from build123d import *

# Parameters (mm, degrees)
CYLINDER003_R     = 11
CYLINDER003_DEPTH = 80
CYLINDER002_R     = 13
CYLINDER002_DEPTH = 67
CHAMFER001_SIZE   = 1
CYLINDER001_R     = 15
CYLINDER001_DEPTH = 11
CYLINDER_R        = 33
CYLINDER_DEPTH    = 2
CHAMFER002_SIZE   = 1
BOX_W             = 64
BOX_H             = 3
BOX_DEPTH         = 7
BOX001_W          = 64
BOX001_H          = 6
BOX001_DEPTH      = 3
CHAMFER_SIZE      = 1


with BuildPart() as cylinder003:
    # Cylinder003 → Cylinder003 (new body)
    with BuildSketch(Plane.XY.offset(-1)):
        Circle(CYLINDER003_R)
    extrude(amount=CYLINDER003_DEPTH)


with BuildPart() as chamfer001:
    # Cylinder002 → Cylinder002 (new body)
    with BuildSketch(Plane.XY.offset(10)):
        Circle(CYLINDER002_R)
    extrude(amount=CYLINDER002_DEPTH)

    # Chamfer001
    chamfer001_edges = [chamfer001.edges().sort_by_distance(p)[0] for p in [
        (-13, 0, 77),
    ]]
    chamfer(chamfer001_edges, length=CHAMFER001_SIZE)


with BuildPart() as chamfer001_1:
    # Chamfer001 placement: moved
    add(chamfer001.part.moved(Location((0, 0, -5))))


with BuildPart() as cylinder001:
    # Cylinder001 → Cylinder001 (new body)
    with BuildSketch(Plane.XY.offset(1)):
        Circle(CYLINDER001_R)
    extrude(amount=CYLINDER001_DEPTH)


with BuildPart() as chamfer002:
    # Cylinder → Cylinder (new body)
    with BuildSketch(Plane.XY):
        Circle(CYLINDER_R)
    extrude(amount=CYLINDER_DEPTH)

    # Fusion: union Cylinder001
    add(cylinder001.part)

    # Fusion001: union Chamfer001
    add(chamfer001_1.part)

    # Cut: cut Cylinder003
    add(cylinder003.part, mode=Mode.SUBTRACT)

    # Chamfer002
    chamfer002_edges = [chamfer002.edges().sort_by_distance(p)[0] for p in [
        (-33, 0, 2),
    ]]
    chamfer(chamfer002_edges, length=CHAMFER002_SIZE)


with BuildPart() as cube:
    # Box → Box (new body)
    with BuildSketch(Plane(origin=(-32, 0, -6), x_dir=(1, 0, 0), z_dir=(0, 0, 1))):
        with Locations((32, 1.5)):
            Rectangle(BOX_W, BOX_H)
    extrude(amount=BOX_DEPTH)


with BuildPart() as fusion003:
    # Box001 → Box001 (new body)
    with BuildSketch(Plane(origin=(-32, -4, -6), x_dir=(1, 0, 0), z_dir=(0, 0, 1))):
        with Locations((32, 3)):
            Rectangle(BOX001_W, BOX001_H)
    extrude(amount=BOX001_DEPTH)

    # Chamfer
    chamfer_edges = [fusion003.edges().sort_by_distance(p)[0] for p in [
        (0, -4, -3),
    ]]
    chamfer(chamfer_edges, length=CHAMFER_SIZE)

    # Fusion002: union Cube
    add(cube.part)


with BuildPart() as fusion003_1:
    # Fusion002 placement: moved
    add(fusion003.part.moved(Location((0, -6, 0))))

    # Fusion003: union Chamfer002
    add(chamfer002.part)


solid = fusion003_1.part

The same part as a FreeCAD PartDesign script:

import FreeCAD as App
import Part
import Sketcher
from FreeCAD import Vector


def edges_at(feature, points):
    """Names of the edges that pass closest to the given points."""
    edges = feature.Shape.Edges
    near = lambda p: min(range(len(edges)), key=lambda i: edges[i].distToShape(Part.Vertex(*p))[0])
    return sorted({f"Edge{near(p) + 1}" for p in points})


def add_polygon(sketch, points):
    """Adds a closed chain of lines whose ends are joined by coincident constraints."""
    first, n = sketch.GeometryCount, len(points)
    for a, b in zip(points, points[1:] + points[:1]):
        sketch.addGeometry(Part.LineSegment(App.Vector(*a, 0), App.Vector(*b, 0)), False)
    for i in range(n):
        sketch.addConstraint(Sketcher.Constraint("Coincident", first + i, 2, first + (i + 1) % n, 1))

doc = App.newDocument("Part")
body = doc.addObject("PartDesign::Body", "Body")

# Sketch on XY plane
sketch1 = body.newObject("Sketcher::SketchObject", "Sketch")
sketch1.AttachmentSupport = (doc.getObject("XY_Plane"), [""])
sketch1.MapMode = "FlatFace"
sketch1.AttachmentOffset = App.Placement(Vector(0, 0, -1), App.Rotation())
sketch1.addGeometry(Part.Circle(Vector(0, 0, 0), Vector(0, 0, 1), 11), False)
sketch1.addConstraint([
    Sketcher.Constraint("Coincident", 0, 3, -1, 1),
    Sketcher.Constraint("Diameter", 0, 22.0),
])
pad1 = body.newObject("PartDesign::Pad", "Pad")
pad1.Profile = sketch1
pad1.Length = 80
body2 = doc.addObject("PartDesign::Body", "Body001")

# Sketch on XY plane
sketch2 = body2.newObject("Sketcher::SketchObject", "Sketch001")
sketch2.AttachmentSupport = (doc.getObject("XY_Plane001"), [""])
sketch2.MapMode = "FlatFace"
sketch2.AttachmentOffset = App.Placement(Vector(0, 0, 10), App.Rotation())
sketch2.addGeometry(Part.Circle(Vector(0, 0, 0), Vector(0, 0, 1), 13), False)
sketch2.addConstraint([
    Sketcher.Constraint("Coincident", 0, 3, -1, 1),
    Sketcher.Constraint("Diameter", 0, 26.0),
])
pad2 = body2.newObject("PartDesign::Pad", "Pad001")
pad2.Profile = sketch2
pad2.Length = 67
doc.recompute()

chamfer = body2.newObject("PartDesign::Chamfer", "Chamfer")
chamfer.Base = (pad2, edges_at(pad2, [(-13, 0, 77)]))
chamfer.Size = 1
body3 = doc.addObject("PartDesign::Body", "Body002")
doc.recompute()

body2.Placement = App.Placement(Vector(0, 0, -5), App.Rotation(Vector(0, 0, 1), 0))
boolean = body3.newObject("PartDesign::Boolean", "Boolean")
boolean.Type = "Fuse"
boolean.addObjects([body2])
body4 = doc.addObject("PartDesign::Body", "Body003")

# Sketch on XY plane
sketch3 = body4.newObject("Sketcher::SketchObject", "Sketch002")
sketch3.AttachmentSupport = (doc.getObject("XY_Plane003"), [""])
sketch3.MapMode = "FlatFace"
sketch3.AttachmentOffset = App.Placement(Vector(0, 0, 1), App.Rotation())
sketch3.addGeometry(Part.Circle(Vector(0, 0, 0), Vector(0, 0, 1), 15), False)
sketch3.addConstraint([
    Sketcher.Constraint("Coincident", 0, 3, -1, 1),
    Sketcher.Constraint("Diameter", 0, 30.0),
])
pad3 = body4.newObject("PartDesign::Pad", "Pad002")
pad3.Profile = sketch3
pad3.Length = 11
body5 = doc.addObject("PartDesign::Body", "Body004")

# Sketch on XY plane
sketch4 = body5.newObject("Sketcher::SketchObject", "Sketch003")
sketch4.AttachmentSupport = (doc.getObject("XY_Plane004"), [""])
sketch4.MapMode = "FlatFace"
sketch4.addGeometry(Part.Circle(Vector(0, 0, 0), Vector(0, 0, 1), 33), False)
sketch4.addConstraint([
    Sketcher.Constraint("Coincident", 0, 3, -1, 1),
    Sketcher.Constraint("Diameter", 0, 66.0),
])
pad4 = body5.newObject("PartDesign::Pad", "Pad003")
pad4.Profile = sketch4
pad4.Length = 2
doc.recompute()

boolean2 = body5.newObject("PartDesign::Boolean", "Boolean001")
boolean2.Type = "Fuse"
boolean2.addObjects([body4])
doc.recompute()

boolean3 = body5.newObject("PartDesign::Boolean", "Boolean002")
boolean3.Type = "Fuse"
boolean3.addObjects([body3])
doc.recompute()

boolean4 = body5.newObject("PartDesign::Boolean", "Boolean003")
boolean4.Type = "Cut"
boolean4.addObjects([body])
doc.recompute()

chamfer2 = body5.newObject("PartDesign::Chamfer", "Chamfer001")
chamfer2.Base = (boolean4, edges_at(boolean4, [(-33, 0, 2)]))
chamfer2.Size = 1
body6 = doc.addObject("PartDesign::Body", "Body005")

# Sketch on XY plane
sketch5 = body6.newObject("Sketcher::SketchObject", "Sketch004")
sketch5.AttachmentSupport = (doc.getObject("XY_Plane005"), [""])
sketch5.MapMode = "FlatFace"
sketch5.AttachmentOffset = App.Placement(Vector(0, 0, -6), App.Rotation())
add_polygon(sketch5, [(-32, 3), (-32, 0), (32, 0), (32, 3)])  # lines 0-3
sketch5.addConstraint([
    Sketcher.Constraint("Vertical", 0),
    Sketcher.Constraint("Horizontal", 1),
    Sketcher.Constraint("Vertical", 2),
    Sketcher.Constraint("Horizontal", 3),
    Sketcher.Constraint("Symmetric", 0, 2, 1, 2, -1, 1),
    Sketcher.Constraint("DistanceX", 1, 1, 1, 2, 64.0),
    Sketcher.Constraint("DistanceY", 0, 2, 0, 1, 3.0),
])
pad5 = body6.newObject("PartDesign::Pad", "Pad004")
pad5.Profile = sketch5
pad5.Length = 7
body7 = doc.addObject("PartDesign::Body", "Body006")

# Sketch on XY plane
sketch6 = body7.newObject("Sketcher::SketchObject", "Sketch005")
sketch6.AttachmentSupport = (doc.getObject("XY_Plane006"), [""])
sketch6.MapMode = "FlatFace"
sketch6.AttachmentOffset = App.Placement(Vector(0, 0, -6), App.Rotation())
add_polygon(sketch6, [(-32, 2), (-32, -4), (32, -4), (32, 2)])  # lines 0-3
sketch6.addConstraint([
    Sketcher.Constraint("Vertical", 0),
    Sketcher.Constraint("Horizontal", 1),
    Sketcher.Constraint("Vertical", 2),
    Sketcher.Constraint("Horizontal", 3),
    Sketcher.Constraint("DistanceX", 1, 1, 1, 2, 64.0),
    Sketcher.Constraint("DistanceY", 0, 2, 0, 1, 6.0),
    Sketcher.Constraint("DistanceX", 0, 2, -1, 1, 32.0),
    Sketcher.Constraint("DistanceY", 0, 2, -1, 1, 4.0),
])
pad6 = body7.newObject("PartDesign::Pad", "Pad005")
pad6.Profile = sketch6
pad6.Length = 3
doc.recompute()

chamfer3 = body7.newObject("PartDesign::Chamfer", "Chamfer002")
chamfer3.Base = (pad6, edges_at(pad6, [(0, -4, -3)]))
chamfer3.Size = 1
doc.recompute()

boolean5 = body7.newObject("PartDesign::Boolean", "Boolean004")
boolean5.Type = "Fuse"
boolean5.addObjects([body6])
body8 = doc.addObject("PartDesign::Body", "Body007")
doc.recompute()

body7.Placement = App.Placement(Vector(0, -6, 0), App.Rotation(Vector(0, 0, 1), 0))
boolean6 = body8.newObject("PartDesign::Boolean", "Boolean005")
boolean6.Type = "Fuse"
boolean6.addObjects([body7])
doc.recompute()

boolean7 = body8.newObject("PartDesign::Boolean", "Boolean006")
boolean7.Type = "Fuse"
boolean7.addObjects([body5])

doc.recompute()
